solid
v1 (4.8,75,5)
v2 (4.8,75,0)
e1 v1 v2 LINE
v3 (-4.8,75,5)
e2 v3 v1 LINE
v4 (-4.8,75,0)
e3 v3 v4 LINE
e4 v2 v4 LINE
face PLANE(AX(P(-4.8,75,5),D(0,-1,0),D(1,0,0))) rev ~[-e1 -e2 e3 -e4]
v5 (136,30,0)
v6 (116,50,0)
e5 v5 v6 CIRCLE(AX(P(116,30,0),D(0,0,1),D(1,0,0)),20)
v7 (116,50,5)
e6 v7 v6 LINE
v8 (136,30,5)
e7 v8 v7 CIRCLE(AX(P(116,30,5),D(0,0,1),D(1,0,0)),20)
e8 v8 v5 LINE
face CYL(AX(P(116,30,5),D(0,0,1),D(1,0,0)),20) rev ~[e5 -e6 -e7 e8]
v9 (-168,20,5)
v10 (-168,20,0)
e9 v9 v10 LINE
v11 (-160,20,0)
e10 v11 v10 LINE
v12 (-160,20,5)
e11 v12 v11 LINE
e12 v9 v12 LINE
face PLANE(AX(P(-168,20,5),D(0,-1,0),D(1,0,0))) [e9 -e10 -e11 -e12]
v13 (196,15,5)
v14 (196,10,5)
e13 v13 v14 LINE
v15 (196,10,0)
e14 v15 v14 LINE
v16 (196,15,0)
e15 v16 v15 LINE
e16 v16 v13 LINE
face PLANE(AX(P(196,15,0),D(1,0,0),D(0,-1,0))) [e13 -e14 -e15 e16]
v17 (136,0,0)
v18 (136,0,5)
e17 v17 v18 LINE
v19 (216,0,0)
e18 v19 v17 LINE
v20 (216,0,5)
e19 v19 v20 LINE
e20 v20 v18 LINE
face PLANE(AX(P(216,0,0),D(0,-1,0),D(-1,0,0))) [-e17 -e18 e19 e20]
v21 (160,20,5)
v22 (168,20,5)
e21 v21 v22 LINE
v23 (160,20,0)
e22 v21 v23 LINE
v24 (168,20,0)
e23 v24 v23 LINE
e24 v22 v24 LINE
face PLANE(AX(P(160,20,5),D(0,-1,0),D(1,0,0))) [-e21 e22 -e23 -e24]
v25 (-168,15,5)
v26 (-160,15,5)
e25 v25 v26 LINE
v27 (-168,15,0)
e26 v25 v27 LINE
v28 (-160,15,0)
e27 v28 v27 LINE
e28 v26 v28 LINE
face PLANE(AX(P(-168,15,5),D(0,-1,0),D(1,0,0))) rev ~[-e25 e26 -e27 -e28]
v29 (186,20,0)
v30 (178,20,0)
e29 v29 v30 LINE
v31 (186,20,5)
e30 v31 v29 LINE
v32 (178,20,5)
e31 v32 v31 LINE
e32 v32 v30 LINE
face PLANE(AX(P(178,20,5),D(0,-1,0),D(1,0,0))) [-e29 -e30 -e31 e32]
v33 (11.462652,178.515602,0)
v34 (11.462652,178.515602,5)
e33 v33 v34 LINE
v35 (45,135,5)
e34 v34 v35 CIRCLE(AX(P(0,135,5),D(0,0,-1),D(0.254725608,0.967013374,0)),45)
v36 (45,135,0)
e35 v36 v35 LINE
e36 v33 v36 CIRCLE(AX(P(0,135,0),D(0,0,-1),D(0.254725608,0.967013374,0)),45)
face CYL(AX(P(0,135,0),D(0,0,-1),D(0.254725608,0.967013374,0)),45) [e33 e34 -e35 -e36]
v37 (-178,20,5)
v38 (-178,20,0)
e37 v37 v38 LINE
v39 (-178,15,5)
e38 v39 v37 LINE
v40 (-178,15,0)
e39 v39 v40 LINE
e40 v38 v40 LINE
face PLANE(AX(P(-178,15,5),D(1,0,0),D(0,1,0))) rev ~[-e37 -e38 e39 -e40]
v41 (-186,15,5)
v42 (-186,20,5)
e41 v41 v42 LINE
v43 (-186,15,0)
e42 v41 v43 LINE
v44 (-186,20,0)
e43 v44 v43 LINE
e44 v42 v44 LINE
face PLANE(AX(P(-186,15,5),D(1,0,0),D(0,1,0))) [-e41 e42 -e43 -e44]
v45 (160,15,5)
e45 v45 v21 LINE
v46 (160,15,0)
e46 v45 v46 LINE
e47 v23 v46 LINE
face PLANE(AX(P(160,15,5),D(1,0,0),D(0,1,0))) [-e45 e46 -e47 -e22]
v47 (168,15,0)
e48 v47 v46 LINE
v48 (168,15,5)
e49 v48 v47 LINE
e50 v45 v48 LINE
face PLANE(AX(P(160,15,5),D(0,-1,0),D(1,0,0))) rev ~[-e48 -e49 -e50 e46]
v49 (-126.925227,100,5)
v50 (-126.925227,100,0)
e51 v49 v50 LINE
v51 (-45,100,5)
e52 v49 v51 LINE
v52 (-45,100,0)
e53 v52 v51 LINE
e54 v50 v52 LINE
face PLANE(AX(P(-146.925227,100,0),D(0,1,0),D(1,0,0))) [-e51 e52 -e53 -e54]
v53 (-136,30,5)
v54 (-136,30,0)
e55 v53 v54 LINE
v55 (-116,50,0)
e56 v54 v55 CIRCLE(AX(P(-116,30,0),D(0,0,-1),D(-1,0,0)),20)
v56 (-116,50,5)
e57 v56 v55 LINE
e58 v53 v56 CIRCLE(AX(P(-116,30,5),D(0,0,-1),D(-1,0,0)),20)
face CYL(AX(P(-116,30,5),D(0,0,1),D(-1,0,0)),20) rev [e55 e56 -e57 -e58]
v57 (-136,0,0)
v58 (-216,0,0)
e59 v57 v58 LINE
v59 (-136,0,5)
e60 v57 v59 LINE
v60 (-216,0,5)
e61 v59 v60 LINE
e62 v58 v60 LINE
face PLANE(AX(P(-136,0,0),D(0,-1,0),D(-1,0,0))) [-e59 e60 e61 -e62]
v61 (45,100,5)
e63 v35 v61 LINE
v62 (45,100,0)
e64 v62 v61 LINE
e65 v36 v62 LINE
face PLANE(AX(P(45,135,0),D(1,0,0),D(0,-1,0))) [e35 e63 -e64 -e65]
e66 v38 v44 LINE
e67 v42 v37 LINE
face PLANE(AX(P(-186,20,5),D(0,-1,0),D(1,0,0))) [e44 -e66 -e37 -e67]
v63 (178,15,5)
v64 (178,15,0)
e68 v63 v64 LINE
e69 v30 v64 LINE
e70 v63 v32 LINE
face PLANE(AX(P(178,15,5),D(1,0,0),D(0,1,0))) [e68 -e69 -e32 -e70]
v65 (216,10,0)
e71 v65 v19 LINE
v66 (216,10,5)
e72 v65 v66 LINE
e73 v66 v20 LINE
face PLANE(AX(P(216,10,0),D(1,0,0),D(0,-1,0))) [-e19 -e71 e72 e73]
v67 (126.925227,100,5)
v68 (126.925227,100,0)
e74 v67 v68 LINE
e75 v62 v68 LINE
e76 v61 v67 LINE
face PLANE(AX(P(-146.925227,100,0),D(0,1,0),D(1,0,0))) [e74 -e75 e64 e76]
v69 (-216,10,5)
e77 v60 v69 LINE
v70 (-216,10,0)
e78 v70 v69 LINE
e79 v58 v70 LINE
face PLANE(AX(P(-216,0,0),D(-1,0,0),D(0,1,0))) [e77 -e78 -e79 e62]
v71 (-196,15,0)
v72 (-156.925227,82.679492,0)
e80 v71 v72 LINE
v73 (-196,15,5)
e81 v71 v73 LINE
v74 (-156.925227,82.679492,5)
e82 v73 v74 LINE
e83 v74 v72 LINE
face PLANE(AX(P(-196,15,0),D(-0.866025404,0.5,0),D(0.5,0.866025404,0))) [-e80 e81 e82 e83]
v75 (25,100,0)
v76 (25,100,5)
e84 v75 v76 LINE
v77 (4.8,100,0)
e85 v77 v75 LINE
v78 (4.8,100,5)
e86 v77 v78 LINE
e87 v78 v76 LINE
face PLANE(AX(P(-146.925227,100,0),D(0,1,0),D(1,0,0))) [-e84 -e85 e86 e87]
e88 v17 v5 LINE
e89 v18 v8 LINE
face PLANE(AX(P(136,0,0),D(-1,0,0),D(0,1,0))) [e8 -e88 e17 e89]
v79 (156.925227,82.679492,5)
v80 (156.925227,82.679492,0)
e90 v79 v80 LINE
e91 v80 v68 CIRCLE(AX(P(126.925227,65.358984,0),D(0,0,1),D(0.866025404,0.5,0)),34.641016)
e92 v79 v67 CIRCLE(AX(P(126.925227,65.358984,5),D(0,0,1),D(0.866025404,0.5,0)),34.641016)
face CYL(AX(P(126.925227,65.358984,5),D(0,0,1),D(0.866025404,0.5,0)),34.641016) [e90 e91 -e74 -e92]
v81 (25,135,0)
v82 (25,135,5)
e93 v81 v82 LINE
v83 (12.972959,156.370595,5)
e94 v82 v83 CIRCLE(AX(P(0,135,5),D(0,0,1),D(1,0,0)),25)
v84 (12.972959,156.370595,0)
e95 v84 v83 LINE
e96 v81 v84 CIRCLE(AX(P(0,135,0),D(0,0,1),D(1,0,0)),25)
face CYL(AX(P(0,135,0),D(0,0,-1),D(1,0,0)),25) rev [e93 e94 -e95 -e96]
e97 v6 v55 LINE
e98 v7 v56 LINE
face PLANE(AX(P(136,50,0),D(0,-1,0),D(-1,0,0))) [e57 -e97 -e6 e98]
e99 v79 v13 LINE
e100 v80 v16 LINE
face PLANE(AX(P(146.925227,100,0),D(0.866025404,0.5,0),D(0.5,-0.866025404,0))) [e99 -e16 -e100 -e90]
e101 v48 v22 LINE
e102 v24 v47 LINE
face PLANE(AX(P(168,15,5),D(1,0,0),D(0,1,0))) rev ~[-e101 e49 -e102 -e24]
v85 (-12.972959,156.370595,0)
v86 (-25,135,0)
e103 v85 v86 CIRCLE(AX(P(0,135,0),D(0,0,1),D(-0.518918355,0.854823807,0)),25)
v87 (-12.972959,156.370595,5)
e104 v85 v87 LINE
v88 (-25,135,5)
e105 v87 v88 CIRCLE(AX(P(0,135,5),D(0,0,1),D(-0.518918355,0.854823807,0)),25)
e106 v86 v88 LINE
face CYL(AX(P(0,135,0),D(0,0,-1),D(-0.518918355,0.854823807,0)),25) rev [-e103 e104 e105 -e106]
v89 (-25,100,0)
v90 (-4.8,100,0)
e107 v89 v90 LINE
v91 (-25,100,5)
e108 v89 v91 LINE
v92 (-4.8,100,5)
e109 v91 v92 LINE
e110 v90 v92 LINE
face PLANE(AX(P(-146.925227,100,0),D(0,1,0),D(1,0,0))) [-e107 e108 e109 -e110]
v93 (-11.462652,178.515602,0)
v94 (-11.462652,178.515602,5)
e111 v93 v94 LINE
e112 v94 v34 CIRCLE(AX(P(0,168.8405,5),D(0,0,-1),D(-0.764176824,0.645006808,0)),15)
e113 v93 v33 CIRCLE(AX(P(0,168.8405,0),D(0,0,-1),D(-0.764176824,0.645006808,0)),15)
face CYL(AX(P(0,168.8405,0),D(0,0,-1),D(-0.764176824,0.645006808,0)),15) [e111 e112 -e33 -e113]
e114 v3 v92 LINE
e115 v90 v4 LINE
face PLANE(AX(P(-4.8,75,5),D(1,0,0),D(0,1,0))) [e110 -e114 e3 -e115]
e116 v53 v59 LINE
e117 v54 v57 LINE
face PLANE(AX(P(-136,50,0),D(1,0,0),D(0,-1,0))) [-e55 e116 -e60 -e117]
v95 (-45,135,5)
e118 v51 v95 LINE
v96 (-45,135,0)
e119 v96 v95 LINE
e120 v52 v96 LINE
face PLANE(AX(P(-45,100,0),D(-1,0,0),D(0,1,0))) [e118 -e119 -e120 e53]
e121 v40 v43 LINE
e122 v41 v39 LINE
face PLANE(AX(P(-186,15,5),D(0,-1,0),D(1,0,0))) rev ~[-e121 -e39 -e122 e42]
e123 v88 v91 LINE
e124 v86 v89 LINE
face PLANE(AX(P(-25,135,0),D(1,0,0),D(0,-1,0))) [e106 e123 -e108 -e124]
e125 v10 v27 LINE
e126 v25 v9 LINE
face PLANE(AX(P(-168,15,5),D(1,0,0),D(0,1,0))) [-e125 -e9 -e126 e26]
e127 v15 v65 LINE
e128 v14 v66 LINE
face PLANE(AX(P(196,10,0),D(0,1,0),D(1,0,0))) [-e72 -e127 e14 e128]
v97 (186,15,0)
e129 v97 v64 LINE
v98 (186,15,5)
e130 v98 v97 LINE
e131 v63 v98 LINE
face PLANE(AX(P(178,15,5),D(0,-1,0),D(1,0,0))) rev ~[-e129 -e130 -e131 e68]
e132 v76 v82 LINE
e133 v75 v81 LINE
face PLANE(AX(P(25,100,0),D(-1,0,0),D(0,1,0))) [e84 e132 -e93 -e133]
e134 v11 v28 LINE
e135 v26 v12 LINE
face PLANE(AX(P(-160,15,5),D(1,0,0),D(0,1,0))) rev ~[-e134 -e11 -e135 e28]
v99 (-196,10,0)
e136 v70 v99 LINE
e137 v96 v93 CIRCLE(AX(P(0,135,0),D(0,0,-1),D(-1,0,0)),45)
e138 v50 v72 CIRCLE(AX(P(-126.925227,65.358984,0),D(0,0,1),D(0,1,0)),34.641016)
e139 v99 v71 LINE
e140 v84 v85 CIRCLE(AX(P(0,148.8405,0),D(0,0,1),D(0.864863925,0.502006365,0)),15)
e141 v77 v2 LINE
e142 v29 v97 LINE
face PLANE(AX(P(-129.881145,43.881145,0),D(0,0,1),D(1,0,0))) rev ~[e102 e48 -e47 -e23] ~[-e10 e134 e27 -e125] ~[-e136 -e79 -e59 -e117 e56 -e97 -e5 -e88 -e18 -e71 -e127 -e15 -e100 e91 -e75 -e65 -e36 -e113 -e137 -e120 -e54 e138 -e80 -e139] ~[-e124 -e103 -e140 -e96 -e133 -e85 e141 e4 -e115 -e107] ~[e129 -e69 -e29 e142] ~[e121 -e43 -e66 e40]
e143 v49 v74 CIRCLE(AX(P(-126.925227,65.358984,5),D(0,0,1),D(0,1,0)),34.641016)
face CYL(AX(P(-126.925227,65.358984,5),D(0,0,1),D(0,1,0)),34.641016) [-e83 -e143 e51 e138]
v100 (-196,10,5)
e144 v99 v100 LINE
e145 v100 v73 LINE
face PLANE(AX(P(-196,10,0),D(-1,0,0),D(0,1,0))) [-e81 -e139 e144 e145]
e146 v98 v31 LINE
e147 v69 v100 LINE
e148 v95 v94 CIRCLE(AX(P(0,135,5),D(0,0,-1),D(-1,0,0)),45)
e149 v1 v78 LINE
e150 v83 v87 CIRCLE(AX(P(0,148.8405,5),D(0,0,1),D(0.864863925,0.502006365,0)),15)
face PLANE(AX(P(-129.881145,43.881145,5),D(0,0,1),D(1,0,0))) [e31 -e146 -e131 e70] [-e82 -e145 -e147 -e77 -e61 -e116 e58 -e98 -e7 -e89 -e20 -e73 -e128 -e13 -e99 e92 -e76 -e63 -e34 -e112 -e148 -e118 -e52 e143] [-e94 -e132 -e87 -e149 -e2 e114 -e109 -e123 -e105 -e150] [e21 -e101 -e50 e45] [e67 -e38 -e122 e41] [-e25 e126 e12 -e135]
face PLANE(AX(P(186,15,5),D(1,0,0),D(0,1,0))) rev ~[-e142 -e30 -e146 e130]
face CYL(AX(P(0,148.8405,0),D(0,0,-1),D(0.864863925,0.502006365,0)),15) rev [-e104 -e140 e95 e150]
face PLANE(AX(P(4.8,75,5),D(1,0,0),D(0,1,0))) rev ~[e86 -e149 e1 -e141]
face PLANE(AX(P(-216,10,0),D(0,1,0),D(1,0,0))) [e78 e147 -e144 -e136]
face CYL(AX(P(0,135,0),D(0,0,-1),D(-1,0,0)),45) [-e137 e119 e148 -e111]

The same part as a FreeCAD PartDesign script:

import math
import FreeCAD as App
import Part
import Sketcher
from FreeCAD import Vector
Q = App.Units.Quantity


def add_polygon(sketch, points):
    """Adds a closed chain of lines whose ends are joined by coincident constraints."""
    first, n = sketch.GeometryCount, len(points)
    for a, b in zip(points, points[1:] + points[:1]):
        sketch.addGeometry(Part.LineSegment(App.Vector(*a, 0), App.Vector(*b, 0)), False)
    for i in range(n):
        sketch.addConstraint(Sketcher.Constraint("Coincident", first + i, 2, first + (i + 1) % n, 1))

doc = App.newDocument("Part")
body = doc.addObject("PartDesign::Body", "Body")

sketch1 = body.newObject("Sketcher::SketchObject", "Sketch")
sketch1.AttachmentSupport = (doc.getObject("XY_Plane"), [""])
sketch1.MapMode = "FlatFace"
add_polygon(sketch1, [(-216, 10), (-216, 0), (-136, 0), (-136, 50), (136, 50), (136, 0), (216, 0), (216, 10), (196, 10), (196, 15), (147, 100), (-147, 100), (-196, 15), (-196, 10)])
sketch1.addConstraint([
    Sketcher.Constraint("Vertical", 0),
    Sketcher.Constraint("Horizontal", 1),
    Sketcher.Constraint("Vertical", 2),
    Sketcher.Constraint("Horizontal", 3),
    Sketcher.Constraint("Vertical", 4),
    Sketcher.Constraint("Horizontal", 5),
    Sketcher.Constraint("Vertical", 6),
    Sketcher.Constraint("Horizontal", 7),
    Sketcher.Constraint("Vertical", 8),
    Sketcher.Constraint("Horizontal", 10),
    Sketcher.Constraint("Vertical", 12),
    Sketcher.Constraint("Horizontal", 13),
    Sketcher.Constraint("Symmetric", 1, 2, 4, 2, -1, 1),
    Sketcher.Constraint("Symmetric", 0, 2, 5, 2, -2),
    Sketcher.Constraint("Symmetric", 8, 2, 11, 2, -2),
    Sketcher.Constraint("Horizontal", 7, 2, 12, 2),
    Sketcher.Constraint("Equal", 9, 11),
    Sketcher.Constraint("DistanceX", 1, 1, 1, 2, Q("80 mm")),
    Sketcher.Constraint("DistanceX", 3, 1, 3, 2, Q("272 mm")),
    Sketcher.Constraint("DistanceX", 7, 2, 7, 1, Q("20 mm")),
    Sketcher.Constraint("DistanceY", 0, 2, 0, 1, Q("10 mm")),
    Sketcher.Constraint("DistanceY", 2, 1, 2, 2, Q("50 mm")),
    Sketcher.Constraint("DistanceY", 8, 1, 8, 2, Q("5 mm")),
    Sketcher.Constraint("Angle", 9, Q("120 deg")),
    Sketcher.Constraint("DistanceY", -1, 1, 9, 2, Q("100 mm")),
])
pad1 = body.newObject("PartDesign::Pad", "Pad")
pad1.Profile = sketch1
pad1.Length = 5

sketch2 = body.newObject("Sketcher::SketchObject", "Sketch001")
sketch2.AttachmentSupport = (doc.getObject("XY_Plane"), [""])
sketch2.MapMode = "FlatFace"
sketch2.AttachmentOffset = App.Placement(Vector(0, 0, 5), App.Rotation())
sketch2.addGeometry([
    Part.LineSegment(Vector(-127, 100, 0), Vector(-147, 100, 0)),
    Part.LineSegment(Vector(-147, 100, 0), Vector(-157, 83, 0)),
    Part.ArcOfCircle(Part.Circle(Vector(-127, 65, 0), Vector(0, 0, 1), 35), math.radians(90), math.radians(150)),
], False)
sketch2.addConstraint([
    Sketcher.Constraint("Coincident", 0, 2, 1, 1),
    Sketcher.Constraint("Tangent", 1, 2, 2, 2),
    Sketcher.Constraint("Tangent", 2, 1, 0, 1),
    Sketcher.Constraint("Horizontal", 0),
    Sketcher.Constraint("DistanceX", 0, 2, 0, 1, Q("20 mm")),
    Sketcher.Constraint("Angle", 1, Q("-120 deg")),
    Sketcher.Constraint("DistanceY", -1, 1, 0, 2, Q("100 mm")),
    Sketcher.Constraint("DistanceX", 2, 3, -1, 1, Q("126.925227 mm")),
])
pocket1 = body.newObject("PartDesign::Pocket", "Pocket")
pocket1.Profile = sketch2
pocket1.Type = "UpToFirst"

sketch3 = body.newObject("Sketcher::SketchObject", "Sketch002")
sketch3.AttachmentSupport = (doc.getObject("XY_Plane"), [""])
sketch3.MapMode = "FlatFace"
sketch3.AttachmentOffset = App.Placement(Vector(0, 0, 5), App.Rotation())
sketch3.addGeometry([
    Part.LineSegment(Vector(157, 83, 0), Vector(147, 100, 0)),
    Part.LineSegment(Vector(147, 100, 0), Vector(127, 100, 0)),
    Part.ArcOfCircle(Part.Circle(Vector(127, 65, 0), Vector(0, 0, 1), 35), math.radians(30), math.radians(90)),
], False)
sketch3.addConstraint([
    Sketcher.Constraint("Coincident", 0, 2, 1, 1),
    Sketcher.Constraint("Tangent", 1, 2, 2, 2),
    Sketcher.Constraint("Tangent", 2, 1, 0, 1),
    Sketcher.Constraint("Horizontal", 1),
    Sketcher.Constraint("DistanceX", 1, 2, 1, 1, Q("20 mm")),
    Sketcher.Constraint("Angle", 0, Q("120 deg")),
    Sketcher.Constraint("DistanceY", -1, 1, 0, 2, Q("100 mm")),
    Sketcher.Constraint("DistanceX", -1, 1, 2, 3, Q("126.925227 mm")),
])
pocket2 = body.newObject("PartDesign::Pocket", "Pocket001")
pocket2.Profile = sketch3
pocket2.Type = "UpToFirst"

sketch4 = body.newObject("Sketcher::SketchObject", "Sketch003")
sketch4.AttachmentSupport = (doc.getObject("XY_Plane"), [""])
sketch4.MapMode = "FlatFace"
sketch4.AttachmentOffset = App.Placement(Vector(0, 0, 5), App.Rotation())
sketch4.addGeometry([
    Part.LineSegment(Vector(-116, 50, 0), Vector(-136, 50, 0)),
    Part.LineSegment(Vector(-136, 50, 0), Vector(-136, 30, 0)),
    Part.ArcOfCircle(Part.Circle(Vector(-116, 30, 0), Vector(0, 0, 1), 20), math.radians(90), math.radians(180)),
    Part.LineSegment(Vector(136, 30, 0), Vector(136, 50, 0)),
    Part.LineSegment(Vector(136, 50, 0), Vector(116, 50, 0)),
    Part.ArcOfCircle(Part.Circle(Vector(116, 30, 0), Vector(0, 0, 1), 20), math.radians(0), math.radians(90)),
], False)
sketch4.addConstraint([
    Sketcher.Constraint("Coincident", 0, 2, 1, 1),
    Sketcher.Constraint("Tangent", 1, 2, 2, 2),
    Sketcher.Constraint("Tangent", 2, 1, 0, 1),
    Sketcher.Constraint("Coincident", 3, 2, 4, 1),
    Sketcher.Constraint("Tangent", 4, 2, 5, 2),
    Sketcher.Constraint("Tangent", 5, 1, 3, 1),
    Sketcher.Constraint("Horizontal", 0),
    Sketcher.Constraint("Vertical", 1),
    Sketcher.Constraint("Vertical", 3),
    Sketcher.Constraint("Horizontal", 4),
    Sketcher.Constraint("Equal", 2, 5),
    Sketcher.Constraint("Symmetric", 2, 3, 5, 3, -2),
    Sketcher.Constraint("Radius", 2, Q("20 mm")),
    Sketcher.Constraint("DistanceX", 2, 3, -1, 1, Q("116 mm")),
    Sketcher.Constraint("DistanceY", -1, 1, 2, 3, Q("30 mm")),
])
pad2 = body.newObject("PartDesign::Pad", "Pad001")
pad2.Profile = sketch4
pad2.Length = 5
pad2.Reversed = True

sketch5 = body.newObject("Sketcher::SketchObject", "Sketch004")
sketch5.AttachmentSupport = (doc.getObject("XY_Plane"), [""])
sketch5.MapMode = "FlatFace"
sketch5.AttachmentOffset = App.Placement(Vector(0, 0, 5), App.Rotation())
add_polygon(sketch5, [(-5, 125), (-5, 75), (5, 75), (5, 125)])
sketch5.addConstraint([
    Sketcher.Constraint("Vertical", 0),
    Sketcher.Constraint("Horizontal", 1),
    Sketcher.Constraint("Vertical", 2),
    Sketcher.Constraint("Horizontal", 3),
    Sketcher.Constraint("DistanceY", 0, 2, 0, 1, Q("50 mm")),
    Sketcher.Constraint("DistanceX", 1, 1, 1, 2, Q("9.6 mm")),
    Sketcher.Constraint("DistanceY", -1, 1, 0, 2, Q("75 mm")),
    Sketcher.Constraint("DistanceX", 0, 2, -1, 1, Q("4.8 mm")),
])
pocket3 = body.newObject("PartDesign::Pocket", "Pocket002")
pocket3.Profile = sketch5
pocket3.Type = "UpToFirst"

sketch6 = body.newObject("Sketcher::SketchObject", "Sketch005")
sketch6.AttachmentSupport = (doc.getObject("XY_Plane"), [""])
sketch6.MapMode = "FlatFace"
sketch6.addGeometry([
    Part.LineSegment(Vector(-45, 100, 0), Vector(-45, 135, 0)),
    Part.ArcOfCircle(Part.Circle(Vector(0, 135, 0), Vector(0, 0, 1), 45), math.radians(105), math.radians(180)),
    Part.ArcOfCircle(Part.Circle(Vector(0, 169, 0), Vector(0, 0, 1), 15), math.radians(40), math.radians(140)),
    Part.ArcOfCircle(Part.Circle(Vector(0, 135, 0), Vector(0, 0, 1), 45), math.radians(0), math.radians(75)),
    Part.LineSegment(Vector(45, 135, 0), Vector(45, 100, 0)),
    Part.LineSegment(Vector(45, 100, 0), Vector(25, 100, 0)),
    Part.LineSegment(Vector(25, 100, 0), Vector(25, 135, 0)),
    Part.ArcOfCircle(Part.Circle(Vector(0, 135, 0), Vector(0, 0, 1), 25), math.radians(0), math.radians(59)),
    Part.ArcOfCircle(Part.Circle(Vector(0, 149, 0), Vector(0, 0, 1), 15), math.radians(30), math.radians(150)),
    Part.ArcOfCircle(Part.Circle(Vector(0, 135, 0), Vector(0, 0, 1), 25), math.radians(121), math.radians(180)),
    Part.LineSegment(Vector(-25, 135, 0), Vector(-25, 100, 0)),
    Part.LineSegment(Vector(-25, 100, 0), Vector(-45, 100, 0)),
], False)
sketch6.addConstraint([
    Sketcher.Constraint("Tangent", 0, 2, 1, 2),
    Sketcher.Constraint("Coincident", 1, 1, 2, 2),
    Sketcher.Constraint("Coincident", 2, 1, 3, 2),
    Sketcher.Constraint("Tangent", 3, 1, 4, 1),
    Sketcher.Constraint("Coincident", 4, 2, 5, 1),
    Sketcher.Constraint("Coincident", 5, 2, 6, 1),
    Sketcher.Constraint("Tangent", 6, 2, 7, 1),
    Sketcher.Constraint("Coincident", 7, 2, 8, 1),
    Sketcher.Constraint("Coincident", 8, 2, 9, 1),
    Sketcher.Constraint("Tangent", 9, 2, 10, 1),
    Sketcher.Constraint("Coincident", 10, 2, 11, 1),
    Sketcher.Constraint("Coincident", 11, 2, 0, 1),
    Sketcher.Constraint("Vertical", 0),
    Sketcher.Constraint("Vertical", 4),
    Sketcher.Constraint("Horizontal", 5),
    Sketcher.Constraint("Vertical", 6),
    Sketcher.Constraint("Vertical", 10),
    Sketcher.Constraint("Horizontal", 11),
    Sketcher.Constraint("Coincident", 3, 3, 1, 3),
    Sketcher.Constraint("Coincident", 7, 3, 1, 3),
    Sketcher.Constraint("Coincident", 9, 3, 1, 3),
    Sketcher.Constraint("Equal", 1, 3),
    Sketcher.Constraint("Equal", 2, 8),
    Sketcher.Constraint("Equal", 7, 9),
    Sketcher.Constraint("Symmetric", 1, 1, 2, 1, -2),
    Sketcher.Constraint("PointOnObject", 8, 3, -2),
    Sketcher.Constraint("Horizontal", 5, 2, 10, 2),
    Sketcher.Constraint("Radius", 1, Q("45 mm")),
    Sketcher.Constraint("Radius", 2, Q("15 mm")),
    Sketcher.Constraint("Radius", 7, Q("25 mm")),
    Sketcher.Constraint("DistanceY", 0, 1, 0, 2, Q("35 mm")),
    Sketcher.Constraint("DistanceY", -1, 1, 1, 3, Q("135 mm")),
    Sketcher.Constraint("DistanceY", 8, 3, 2, 3, Q("20 mm")),
    Sketcher.Constraint("DistanceY", -1, 1, 2, 3, Q("168.8405 mm")),
])
pad3 = body.newObject("PartDesign::Pad", "Pad002")
pad3.Profile = sketch6
pad3.Length = 5

sketch7 = body.newObject("Sketcher::SketchObject", "Sketch006")
sketch7.AttachmentSupport = (doc.getObject("XY_Plane"), [""])
sketch7.MapMode = "FlatFace"
sketch7.AttachmentOffset = App.Placement(Vector(0, 0, 5), App.Rotation())
add_polygon(sketch7, [(-186, 20), (-186, 15), (-178, 15), (-178, 20)])
sketch7.addConstraint([
    Sketcher.Constraint("Vertical", 0),
    Sketcher.Constraint("Horizontal", 1),
    Sketcher.Constraint("Vertical", 2),
    Sketcher.Constraint("Horizontal", 3),
    Sketcher.Constraint("DistanceX", 1, 1, 1, 2, Q("8 mm")),
    Sketcher.Constraint("DistanceY", 0, 2, 0, 1, Q("5 mm")),
    Sketcher.Constraint("DistanceX", 0, 2, -1, 1, Q("186 mm")),
    Sketcher.Constraint("DistanceY", -1, 1, 0, 2, Q("15 mm")),
])
pocket4 = body.newObject("PartDesign::Pocket", "Pocket003")
pocket4.Profile = sketch7
pocket4.Type = "UpToFirst"

sketch8 = body.newObject("Sketcher::SketchObject", "Sketch007")
sketch8.AttachmentSupport = (doc.getObject("XY_Plane"), [""])
sketch8.MapMode = "FlatFace"
sketch8.AttachmentOffset = App.Placement(Vector(0, 0, 5), App.Rotation())
add_polygon(sketch8, [(-168, 20), (-168, 15), (-160, 15), (-160, 20)])
sketch8.addConstraint([
    Sketcher.Constraint("Vertical", 0),
    Sketcher.Constraint("Horizontal", 1),
    Sketcher.Constraint("Vertical", 2),
    Sketcher.Constraint("Horizontal", 3),
    Sketcher.Constraint("DistanceX", 1, 1, 1, 2, Q("8 mm")),
    Sketcher.Constraint("DistanceY", 0, 2, 0, 1, Q("5 mm")),
    Sketcher.Constraint("DistanceX", 0, 2, -1, 1, Q("168 mm")),
    Sketcher.Constraint("DistanceY", -1, 1, 0, 2, Q("15 mm")),
])
pocket5 = body.newObject("PartDesign::Pocket", "Pocket004")
pocket5.Profile = sketch8
pocket5.Type = "UpToFirst"

sketch9 = body.newObject("Sketcher::SketchObject", "Sketch008")
sketch9.AttachmentSupport = (doc.getObject("XY_Plane"), [""])
sketch9.MapMode = "FlatFace"
sketch9.AttachmentOffset = App.Placement(Vector(0, 0, 5), App.Rotation())
add_polygon(sketch9, [(178, 20), (178, 15), (186, 15), (186, 20)])
sketch9.addConstraint([
    Sketcher.Constraint("Vertical", 0),
    Sketcher.Constraint("Horizontal", 1),
    Sketcher.Constraint("Vertical", 2),
    Sketcher.Constraint("Horizontal", 3),
    Sketcher.Constraint("DistanceX", 1, 1, 1, 2, Q("8 mm")),
    Sketcher.Constraint("DistanceY", 0, 2, 0, 1, Q("5 mm")),
    Sketcher.Constraint("DistanceX", -1, 1, 0, 2, Q("178 mm")),
    Sketcher.Constraint("DistanceY", -1, 1, 0, 2, Q("15 mm")),
])
pocket6 = body.newObject("PartDesign::Pocket", "Pocket005")
pocket6.Profile = sketch9
pocket6.Type = "UpToFirst"

sketch10 = body.newObject("Sketcher::SketchObject", "Sketch009")
sketch10.AttachmentSupport = (doc.getObject("XY_Plane"), [""])
sketch10.MapMode = "FlatFace"
sketch10.AttachmentOffset = App.Placement(Vector(0, 0, 5), App.Rotation())
add_polygon(sketch10, [(160, 20), (160, 15), (168, 15), (168, 20)])
sketch10.addConstraint([
    Sketcher.Constraint("Vertical", 0),
    Sketcher.Constraint("Horizontal", 1),
    Sketcher.Constraint("Vertical", 2),
    Sketcher.Constraint("Horizontal", 3),
    Sketcher.Constraint("DistanceX", 1, 1, 1, 2, Q("8 mm")),
    Sketcher.Constraint("DistanceY", 0, 2, 0, 1, Q("5 mm")),
    Sketcher.Constraint("DistanceX", -1, 1, 0, 2, Q("160 mm")),
    Sketcher.Constraint("DistanceY", -1, 1, 0, 2, Q("15 mm")),
])
pocket7 = body.newObject("PartDesign::Pocket", "Pocket006")
pocket7.Profile = sketch10
pocket7.Type = "UpToFirst"

doc.recompute()
